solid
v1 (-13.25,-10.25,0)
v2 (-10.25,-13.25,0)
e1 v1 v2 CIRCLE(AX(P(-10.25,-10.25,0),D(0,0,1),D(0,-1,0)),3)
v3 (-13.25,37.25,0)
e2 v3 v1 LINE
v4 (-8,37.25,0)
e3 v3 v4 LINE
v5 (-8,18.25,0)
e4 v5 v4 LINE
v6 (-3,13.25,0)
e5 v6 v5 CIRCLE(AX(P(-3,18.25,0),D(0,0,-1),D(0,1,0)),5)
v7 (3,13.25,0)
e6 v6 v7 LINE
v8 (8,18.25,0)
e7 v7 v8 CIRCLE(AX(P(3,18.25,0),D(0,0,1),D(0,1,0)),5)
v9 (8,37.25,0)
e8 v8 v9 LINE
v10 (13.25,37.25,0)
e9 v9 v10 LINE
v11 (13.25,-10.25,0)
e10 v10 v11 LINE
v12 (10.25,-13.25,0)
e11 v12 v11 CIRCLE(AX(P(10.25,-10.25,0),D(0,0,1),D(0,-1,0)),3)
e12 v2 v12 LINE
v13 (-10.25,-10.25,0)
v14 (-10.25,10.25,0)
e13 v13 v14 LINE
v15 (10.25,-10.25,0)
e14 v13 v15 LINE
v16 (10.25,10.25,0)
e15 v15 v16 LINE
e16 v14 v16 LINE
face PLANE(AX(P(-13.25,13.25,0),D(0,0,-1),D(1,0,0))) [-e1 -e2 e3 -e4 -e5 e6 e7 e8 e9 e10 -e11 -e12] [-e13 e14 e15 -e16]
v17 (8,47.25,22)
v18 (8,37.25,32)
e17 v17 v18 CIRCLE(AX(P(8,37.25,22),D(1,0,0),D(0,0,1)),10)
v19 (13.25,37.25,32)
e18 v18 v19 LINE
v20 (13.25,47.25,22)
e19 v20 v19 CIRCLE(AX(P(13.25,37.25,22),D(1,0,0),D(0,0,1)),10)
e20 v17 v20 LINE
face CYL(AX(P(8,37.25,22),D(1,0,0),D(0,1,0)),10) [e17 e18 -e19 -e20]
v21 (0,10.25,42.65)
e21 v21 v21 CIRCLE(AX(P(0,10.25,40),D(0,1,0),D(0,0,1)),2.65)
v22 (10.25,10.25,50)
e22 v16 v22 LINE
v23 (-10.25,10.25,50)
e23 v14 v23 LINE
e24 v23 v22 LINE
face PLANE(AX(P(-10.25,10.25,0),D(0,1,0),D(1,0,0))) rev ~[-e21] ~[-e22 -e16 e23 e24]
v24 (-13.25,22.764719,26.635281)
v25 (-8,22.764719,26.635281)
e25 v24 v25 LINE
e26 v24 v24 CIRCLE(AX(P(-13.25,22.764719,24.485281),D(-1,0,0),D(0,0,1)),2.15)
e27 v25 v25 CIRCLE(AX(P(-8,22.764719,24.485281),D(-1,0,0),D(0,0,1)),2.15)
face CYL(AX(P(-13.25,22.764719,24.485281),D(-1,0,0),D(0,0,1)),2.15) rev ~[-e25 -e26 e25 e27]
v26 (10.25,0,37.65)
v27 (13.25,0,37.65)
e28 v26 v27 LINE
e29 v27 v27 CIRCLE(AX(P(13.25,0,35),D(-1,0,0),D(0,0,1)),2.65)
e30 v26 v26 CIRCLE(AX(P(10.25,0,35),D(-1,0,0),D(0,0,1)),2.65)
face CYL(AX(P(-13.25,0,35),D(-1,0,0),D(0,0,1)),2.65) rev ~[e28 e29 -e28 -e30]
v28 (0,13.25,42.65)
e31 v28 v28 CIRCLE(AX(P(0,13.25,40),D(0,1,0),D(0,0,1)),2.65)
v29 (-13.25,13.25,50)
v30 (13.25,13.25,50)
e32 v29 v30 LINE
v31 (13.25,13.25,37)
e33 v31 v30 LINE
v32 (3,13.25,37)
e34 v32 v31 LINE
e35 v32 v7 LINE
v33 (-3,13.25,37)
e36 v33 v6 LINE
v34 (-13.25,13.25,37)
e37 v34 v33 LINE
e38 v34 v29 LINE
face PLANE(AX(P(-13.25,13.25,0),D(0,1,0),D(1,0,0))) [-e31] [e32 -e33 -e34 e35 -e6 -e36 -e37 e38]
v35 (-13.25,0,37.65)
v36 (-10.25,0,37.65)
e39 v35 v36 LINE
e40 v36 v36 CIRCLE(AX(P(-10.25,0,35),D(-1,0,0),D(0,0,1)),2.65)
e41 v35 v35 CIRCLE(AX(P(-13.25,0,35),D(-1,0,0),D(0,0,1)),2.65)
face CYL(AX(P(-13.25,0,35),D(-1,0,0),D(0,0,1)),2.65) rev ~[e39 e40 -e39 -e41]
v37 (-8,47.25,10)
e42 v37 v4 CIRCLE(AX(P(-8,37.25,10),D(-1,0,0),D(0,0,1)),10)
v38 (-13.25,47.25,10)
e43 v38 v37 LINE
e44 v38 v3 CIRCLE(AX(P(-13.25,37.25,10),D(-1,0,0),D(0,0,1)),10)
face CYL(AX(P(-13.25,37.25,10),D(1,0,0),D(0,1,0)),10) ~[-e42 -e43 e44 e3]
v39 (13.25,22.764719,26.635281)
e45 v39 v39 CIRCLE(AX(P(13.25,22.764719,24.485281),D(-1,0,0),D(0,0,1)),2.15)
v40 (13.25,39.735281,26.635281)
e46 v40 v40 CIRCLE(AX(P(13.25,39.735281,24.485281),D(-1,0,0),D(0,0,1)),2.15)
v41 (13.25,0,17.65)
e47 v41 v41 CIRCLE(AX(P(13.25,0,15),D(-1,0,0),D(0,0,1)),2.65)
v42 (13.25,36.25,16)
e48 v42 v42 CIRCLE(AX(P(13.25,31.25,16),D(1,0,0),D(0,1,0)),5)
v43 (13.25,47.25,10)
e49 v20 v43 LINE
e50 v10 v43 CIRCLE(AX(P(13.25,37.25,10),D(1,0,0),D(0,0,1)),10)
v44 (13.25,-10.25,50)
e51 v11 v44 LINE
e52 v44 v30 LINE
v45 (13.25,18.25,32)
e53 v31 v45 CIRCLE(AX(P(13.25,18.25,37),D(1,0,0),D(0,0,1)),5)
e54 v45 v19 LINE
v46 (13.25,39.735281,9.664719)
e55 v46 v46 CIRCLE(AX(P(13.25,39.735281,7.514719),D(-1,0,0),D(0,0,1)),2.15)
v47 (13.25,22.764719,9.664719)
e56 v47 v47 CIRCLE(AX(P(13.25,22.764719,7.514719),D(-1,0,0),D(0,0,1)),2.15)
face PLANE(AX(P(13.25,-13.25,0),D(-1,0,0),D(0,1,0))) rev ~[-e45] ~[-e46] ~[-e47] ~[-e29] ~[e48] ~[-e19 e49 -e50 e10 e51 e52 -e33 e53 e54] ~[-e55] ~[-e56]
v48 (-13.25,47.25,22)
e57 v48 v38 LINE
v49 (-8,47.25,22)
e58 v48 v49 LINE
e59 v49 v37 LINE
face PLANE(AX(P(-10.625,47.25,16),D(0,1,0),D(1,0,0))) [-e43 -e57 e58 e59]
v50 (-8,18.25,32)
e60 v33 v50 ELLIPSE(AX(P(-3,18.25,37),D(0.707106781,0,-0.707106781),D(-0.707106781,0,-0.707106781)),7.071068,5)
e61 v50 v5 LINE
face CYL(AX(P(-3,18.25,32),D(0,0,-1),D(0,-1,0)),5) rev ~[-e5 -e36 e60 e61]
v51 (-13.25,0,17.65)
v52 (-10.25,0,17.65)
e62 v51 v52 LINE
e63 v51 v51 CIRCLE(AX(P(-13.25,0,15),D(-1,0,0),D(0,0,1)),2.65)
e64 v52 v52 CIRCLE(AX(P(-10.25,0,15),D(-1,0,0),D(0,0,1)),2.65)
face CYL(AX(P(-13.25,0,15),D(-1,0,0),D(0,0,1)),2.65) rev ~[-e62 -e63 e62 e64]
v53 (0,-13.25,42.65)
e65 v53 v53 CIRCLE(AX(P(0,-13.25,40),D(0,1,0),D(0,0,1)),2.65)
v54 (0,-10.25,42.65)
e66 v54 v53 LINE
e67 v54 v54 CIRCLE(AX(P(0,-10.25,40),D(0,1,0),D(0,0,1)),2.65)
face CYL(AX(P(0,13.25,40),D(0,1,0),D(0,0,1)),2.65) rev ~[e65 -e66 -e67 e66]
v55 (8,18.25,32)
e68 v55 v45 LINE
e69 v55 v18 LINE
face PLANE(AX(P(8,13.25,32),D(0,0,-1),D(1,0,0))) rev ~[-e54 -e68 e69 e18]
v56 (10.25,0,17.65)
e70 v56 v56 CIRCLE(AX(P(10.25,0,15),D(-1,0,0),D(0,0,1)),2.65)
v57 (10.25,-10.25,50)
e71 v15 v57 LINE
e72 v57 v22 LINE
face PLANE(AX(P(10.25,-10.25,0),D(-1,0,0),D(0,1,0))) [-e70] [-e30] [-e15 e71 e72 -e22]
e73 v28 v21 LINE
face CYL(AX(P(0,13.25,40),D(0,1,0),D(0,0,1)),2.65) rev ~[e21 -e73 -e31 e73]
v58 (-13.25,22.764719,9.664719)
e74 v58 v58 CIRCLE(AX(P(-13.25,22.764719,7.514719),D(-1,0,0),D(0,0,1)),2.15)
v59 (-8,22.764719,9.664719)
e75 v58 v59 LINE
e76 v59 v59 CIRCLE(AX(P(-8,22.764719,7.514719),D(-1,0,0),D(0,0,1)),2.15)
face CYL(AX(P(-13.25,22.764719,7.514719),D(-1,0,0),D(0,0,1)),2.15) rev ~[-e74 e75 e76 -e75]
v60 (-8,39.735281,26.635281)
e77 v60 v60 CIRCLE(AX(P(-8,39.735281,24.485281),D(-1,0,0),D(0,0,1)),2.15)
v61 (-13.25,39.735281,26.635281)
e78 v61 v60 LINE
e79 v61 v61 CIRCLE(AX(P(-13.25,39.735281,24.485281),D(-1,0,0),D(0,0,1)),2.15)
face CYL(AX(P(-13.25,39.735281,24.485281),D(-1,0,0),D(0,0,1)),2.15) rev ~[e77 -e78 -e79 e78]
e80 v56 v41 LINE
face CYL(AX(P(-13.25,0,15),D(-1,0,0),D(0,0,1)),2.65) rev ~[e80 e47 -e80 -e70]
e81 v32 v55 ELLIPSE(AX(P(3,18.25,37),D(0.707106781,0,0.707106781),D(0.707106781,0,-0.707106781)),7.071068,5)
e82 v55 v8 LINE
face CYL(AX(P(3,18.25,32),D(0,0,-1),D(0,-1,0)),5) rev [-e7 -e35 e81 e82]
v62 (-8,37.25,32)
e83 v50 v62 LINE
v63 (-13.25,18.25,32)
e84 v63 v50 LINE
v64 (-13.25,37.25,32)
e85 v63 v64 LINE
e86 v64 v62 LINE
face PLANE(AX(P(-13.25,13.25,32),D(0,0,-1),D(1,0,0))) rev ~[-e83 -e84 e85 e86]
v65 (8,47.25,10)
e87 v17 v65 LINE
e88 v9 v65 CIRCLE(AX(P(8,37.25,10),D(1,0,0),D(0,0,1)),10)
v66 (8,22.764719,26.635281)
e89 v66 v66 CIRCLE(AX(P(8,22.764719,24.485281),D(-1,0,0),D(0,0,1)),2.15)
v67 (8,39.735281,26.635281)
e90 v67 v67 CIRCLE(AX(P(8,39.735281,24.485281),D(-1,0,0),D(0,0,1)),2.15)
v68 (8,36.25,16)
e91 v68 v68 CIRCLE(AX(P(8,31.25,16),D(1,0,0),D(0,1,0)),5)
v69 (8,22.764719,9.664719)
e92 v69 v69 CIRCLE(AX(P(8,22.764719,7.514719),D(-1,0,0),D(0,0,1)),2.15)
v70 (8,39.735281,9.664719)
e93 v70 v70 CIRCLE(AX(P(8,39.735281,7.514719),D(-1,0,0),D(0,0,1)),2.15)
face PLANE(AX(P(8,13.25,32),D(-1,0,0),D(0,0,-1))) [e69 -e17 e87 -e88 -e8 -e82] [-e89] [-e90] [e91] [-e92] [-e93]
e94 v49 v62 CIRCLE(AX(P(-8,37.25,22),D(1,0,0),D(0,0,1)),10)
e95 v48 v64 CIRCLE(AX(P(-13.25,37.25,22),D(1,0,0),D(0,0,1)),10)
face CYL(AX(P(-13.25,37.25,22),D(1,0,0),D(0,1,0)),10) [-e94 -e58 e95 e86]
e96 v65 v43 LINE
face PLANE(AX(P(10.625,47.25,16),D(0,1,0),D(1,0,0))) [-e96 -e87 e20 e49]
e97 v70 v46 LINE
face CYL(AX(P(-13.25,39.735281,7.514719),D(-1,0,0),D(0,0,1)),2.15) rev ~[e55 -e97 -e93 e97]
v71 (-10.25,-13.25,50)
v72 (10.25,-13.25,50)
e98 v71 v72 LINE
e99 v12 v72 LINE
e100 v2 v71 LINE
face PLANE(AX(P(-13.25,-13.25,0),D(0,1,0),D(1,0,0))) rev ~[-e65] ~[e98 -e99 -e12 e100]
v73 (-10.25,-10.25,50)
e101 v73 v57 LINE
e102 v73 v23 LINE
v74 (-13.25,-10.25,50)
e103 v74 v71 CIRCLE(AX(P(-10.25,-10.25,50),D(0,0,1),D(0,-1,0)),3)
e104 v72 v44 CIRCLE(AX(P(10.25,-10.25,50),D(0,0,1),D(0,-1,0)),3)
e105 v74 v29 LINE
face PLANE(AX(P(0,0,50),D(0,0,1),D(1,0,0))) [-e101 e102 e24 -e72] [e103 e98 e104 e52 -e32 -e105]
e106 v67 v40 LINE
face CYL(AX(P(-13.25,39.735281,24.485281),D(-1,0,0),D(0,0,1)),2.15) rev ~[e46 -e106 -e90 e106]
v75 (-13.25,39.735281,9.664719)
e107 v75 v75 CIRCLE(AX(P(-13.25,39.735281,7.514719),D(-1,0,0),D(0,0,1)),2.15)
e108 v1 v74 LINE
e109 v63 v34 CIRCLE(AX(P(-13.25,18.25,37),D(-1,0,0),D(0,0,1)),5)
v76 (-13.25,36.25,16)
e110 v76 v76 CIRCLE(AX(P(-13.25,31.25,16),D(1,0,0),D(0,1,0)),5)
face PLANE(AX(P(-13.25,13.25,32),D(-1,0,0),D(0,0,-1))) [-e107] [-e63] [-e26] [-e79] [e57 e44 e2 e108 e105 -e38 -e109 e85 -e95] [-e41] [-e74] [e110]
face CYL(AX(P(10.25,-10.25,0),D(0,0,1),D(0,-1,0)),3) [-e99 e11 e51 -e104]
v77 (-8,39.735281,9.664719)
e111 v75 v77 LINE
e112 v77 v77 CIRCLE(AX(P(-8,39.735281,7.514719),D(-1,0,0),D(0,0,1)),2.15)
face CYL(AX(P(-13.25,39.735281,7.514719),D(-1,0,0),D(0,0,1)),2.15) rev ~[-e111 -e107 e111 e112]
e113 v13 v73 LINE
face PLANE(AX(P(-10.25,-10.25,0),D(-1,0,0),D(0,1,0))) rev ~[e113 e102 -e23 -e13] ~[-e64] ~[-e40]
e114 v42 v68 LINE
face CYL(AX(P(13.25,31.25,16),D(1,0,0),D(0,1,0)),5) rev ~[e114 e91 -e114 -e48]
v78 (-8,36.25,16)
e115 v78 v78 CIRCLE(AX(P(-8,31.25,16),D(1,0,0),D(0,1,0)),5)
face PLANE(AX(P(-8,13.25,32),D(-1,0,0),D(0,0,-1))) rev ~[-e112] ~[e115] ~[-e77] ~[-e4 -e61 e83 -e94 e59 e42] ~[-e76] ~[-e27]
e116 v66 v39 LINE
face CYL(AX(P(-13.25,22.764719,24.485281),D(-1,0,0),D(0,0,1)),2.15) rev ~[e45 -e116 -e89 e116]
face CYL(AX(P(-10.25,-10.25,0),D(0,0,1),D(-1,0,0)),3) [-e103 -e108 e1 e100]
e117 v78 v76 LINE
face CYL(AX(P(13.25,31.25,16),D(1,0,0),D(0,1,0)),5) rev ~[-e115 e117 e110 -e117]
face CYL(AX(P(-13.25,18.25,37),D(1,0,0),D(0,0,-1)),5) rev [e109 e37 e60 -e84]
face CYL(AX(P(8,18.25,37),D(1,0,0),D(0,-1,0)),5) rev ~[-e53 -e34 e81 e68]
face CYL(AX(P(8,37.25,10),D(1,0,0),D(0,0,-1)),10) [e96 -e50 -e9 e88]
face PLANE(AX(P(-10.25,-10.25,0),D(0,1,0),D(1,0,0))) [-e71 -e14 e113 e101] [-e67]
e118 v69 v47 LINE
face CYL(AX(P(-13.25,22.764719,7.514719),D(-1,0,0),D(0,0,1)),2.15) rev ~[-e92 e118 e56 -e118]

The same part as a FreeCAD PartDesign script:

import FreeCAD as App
import Part
import Sketcher
Q = App.Units.Quantity


def edges_at(feature, points):
    """Names of the edges that pass closest to the given points."""
    edges = feature.Shape.Edges
    near = lambda p: min(range(len(edges)), key=lambda i: edges[i].distToShape(Part.Vertex(*p))[0])
    return sorted({f"Edge{near(p) + 1}" for p in points})


def add_polygon(sketch, points):
    """Adds a closed chain of lines whose ends are joined by coincident constraints."""
    first, n = sketch.GeometryCount, len(points)
    for a, b in zip(points, points[1:] + points[:1]):
        sketch.addGeometry(Part.LineSegment(App.Vector(*a, 0), App.Vector(*b, 0)), False)
    for i in range(n):
        sketch.addConstraint(Sketcher.Constraint("Coincident", first + i, 2, first + (i + 1) % n, 1))

doc = App.newDocument("Part")
params = doc.addObject("Spreadsheet::Sheet", "Params")
for row, (alias, value) in enumerate([
    ("sketch1_width", "26.5 mm"),
    ("sketch1_width2", "20.5 mm"),
    ("pad1_length", "50 mm"),
    ("sketch2_height", "32 mm"),
    ("sketch2_width", "5.25 mm"),
    ("pad2_length", "34 mm"),
    ("sketch3_diameter", "9 mm"),
    ("sketch3_diameter2", "4.3 mm"),
    ("fillet_radius", "5 mm"),
    ("fillet2_radius", "10 mm"),
    ("fillet3_radius", "10 mm"),
    ("fillet4_radius", "3 mm"),
    ("sketch4_diameter", "5.3 mm"),
    ("sketch5_diameter", "5.3 mm"),
    ("sketch6_diameter", "10 mm"),
], start=1):
    params.set(f"A{row}", alias)
    params.set(f"B{row}", "=" + value)
    params.setAlias(f"B{row}", alias)

body = doc.addObject("PartDesign::Body", "Body")

# Sketch on XY plane
sketch1 = doc.addObject("Sketcher::SketchObject", "Sketch")
body.addObject(sketch1)
sketch1.AttachmentSupport = (doc.XY_Plane, [""])
sketch1.MapMode = "FlatFace"
add_polygon(sketch1, [(-13, 13), (-13, -13), (13, -13), (13, 13)])  # lines 0-3
add_polygon(sketch1, [(10, -10), (-10, -10), (-10, 10), (10, 10)])  # lines 4-7
sketch1.addConstraint([
    Sketcher.Constraint("Vertical", 0),
    Sketcher.Constraint("Horizontal", 1),
    Sketcher.Constraint("Vertical", 2),
    Sketcher.Constraint("Horizontal", 3),
    Sketcher.Constraint("Horizontal", 4),
    Sketcher.Constraint("Vertical", 5),
    Sketcher.Constraint("Horizontal", 6),
    Sketcher.Constraint("Vertical", 7),
    Sketcher.Constraint("Symmetric", 0, 2, 2, 2, -1, 1),
    Sketcher.Constraint("Symmetric", 4, 2, 6, 2, -1, 1),
    Sketcher.Constraint("Equal", 3, 0),
    Sketcher.Constraint("Equal", 6, 5),
    Sketcher.Constraint("DistanceX", 1, 1, 1, 2, Q("26.5 mm")),
    Sketcher.Constraint("DistanceX", 4, 2, 4, 1, Q("20.5 mm")),
])
sketch1.setExpression("Constraints[20]", "Params.sketch1_width")
sketch1.setExpression("Constraints[21]", "Params.sketch1_width2")
pad1 = doc.addObject("PartDesign::Pad", "Pad")
body.addObject(pad1)
pad1.Profile = sketch1
pad1.setExpression("Length", "Params.pad1_length")

# Sketch on XZ plane
sketch2 = doc.addObject("Sketcher::SketchObject", "Sketch001")
body.addObject(sketch2)
sketch2.AttachmentSupport = (doc.XZ_Plane, [""])
sketch2.MapMode = "FlatFace"
sketch2.AttachmentOffset = App.Placement(App.Vector(0, 0, -13.25), App.Rotation())
add_polygon(sketch2, [(-13, 0), (-13, 32), (-8, 32), (-8, 0)])  # lines 0-3
add_polygon(sketch2, [(8, 0), (8, 32), (13, 32), (13, 0)])  # lines 4-7
sketch2.addConstraint([
    Sketcher.Constraint("Vertical", 0),
    Sketcher.Constraint("Horizontal", 1),
    Sketcher.Constraint("Vertical", 2),
    Sketcher.Constraint("Horizontal", 3),
    Sketcher.Constraint("Vertical", 4),
    Sketcher.Constraint("Horizontal", 5),
    Sketcher.Constraint("Vertical", 6),
    Sketcher.Constraint("Horizontal", 7),
    Sketcher.Constraint("Symmetric", 3, 2, 6, 2, -1, 1),
    Sketcher.Constraint("Symmetric", 1, 2, 4, 2, -2),
    Sketcher.Constraint("PointOnObject", 2, 2, -1),
    Sketcher.Constraint("DistanceY", 0, 1, 0, 2, Q("32 mm")),
    Sketcher.Constraint("DistanceX", 1, 2, -1, 1, Q("8 mm")),
    Sketcher.Constraint("DistanceX", 1, 1, 1, 2, Q("5.25 mm")),
])
sketch2.setExpression("Constraints[19]", "Params.sketch2_height")
sketch2.setExpression("Constraints[21]", "Params.sketch2_width")
pad2 = doc.addObject("PartDesign::Pad", "Pad001")
body.addObject(pad2)
pad2.Profile = sketch2
pad2.setExpression("Length", "Params.pad2_length")
pad2.Reversed = True

# Sketch on YZ plane
sketch3 = doc.addObject("Sketcher::SketchObject", "Sketch002")
body.addObject(sketch3)
sketch3.AttachmentSupport = (doc.YZ_Plane, [""])
sketch3.MapMode = "FlatFace"
sketch3.AttachmentOffset = App.Placement(App.Vector(0, 0, -13.25), App.Rotation())
sketch3.addGeometry([
    Part.Circle(App.Vector(31.2, 16, 0), App.Vector(0, 0, 1), 4.5),  # 0
    Part.Circle(App.Vector(39.7, 7.5, 0), App.Vector(0, 0, 1), 2.1),  # 1
    Part.Circle(App.Vector(39.7, 24.5, 0), App.Vector(0, 0, 1), 2.1),  # 2
    Part.Circle(App.Vector(22.8, 24.5, 0), App.Vector(0, 0, 1), 2.1),  # 3
    Part.Circle(App.Vector(22.8, 7.5, 0), App.Vector(0, 0, 1), 2.1),  # 4
], False)
sketch3.addConstraint([
    Sketcher.Constraint("Equal", 1, 2),
    Sketcher.Constraint("Equal", 2, 3),
    Sketcher.Constraint("Equal", 3, 4),
    Sketcher.Constraint("Horizontal", 2, 3, 3, 3),
    Sketcher.Constraint("Horizontal", 1, 3, 4, 3),
    Sketcher.Constraint("Vertical", 1, 3, 2, 3),
    Sketcher.Constraint("Vertical", 3, 3, 4, 3),
    Sketcher.Constraint("Diameter", 0, Q("9 mm")),
    Sketcher.Constraint("Diameter", 1, Q("4.3 mm")),
    Sketcher.Constraint("DistanceY", -1, 1, 0, 3, Q("16 mm")),
    Sketcher.Constraint("DistanceX", -1, 1, 0, 3, Q("31.25 mm")),
    Sketcher.Constraint("DistanceX", -1, 1, 1, 3, Q("39.735281 mm")),
    Sketcher.Constraint("DistanceY", -1, 1, 1, 3, Q("7.514719 mm")),
    Sketcher.Constraint("DistanceY", -1, 1, 2, 3, Q("24.485281 mm")),
    Sketcher.Constraint("DistanceX", -1, 1, 3, 3, Q("22.764719 mm")),
])
sketch3.setExpression("Constraints[7]", "Params.sketch3_diameter")
sketch3.setExpression("Constraints[8]", "Params.sketch3_diameter2")
pocket1 = doc.addObject("PartDesign::Pocket", "Pocket")
body.addObject(pocket1)
pocket1.Profile = sketch3
pocket1.Type = "ThroughAll"
pocket1.Reversed = True
doc.recompute()

fillet = doc.addObject("PartDesign::Fillet", "Fillet")
body.addObject(fillet)
fillet.Base = (pocket1, edges_at(pocket1, [
    (-8, 13.25, 16),
    (-10.625, 13.25, 32),
    (10.625, 13.25, 32),
    (8, 13.25, 16),
]))
fillet.setExpression("Radius", "Params.fillet_radius")
doc.recompute()

fillet2 = doc.addObject("PartDesign::Fillet", "Fillet001")
body.addObject(fillet2)
fillet2.Base = (fillet, edges_at(fillet, [(-10.625, 47.25, 0), (10.625, 47.25, 0)]))
fillet2.setExpression("Radius", "Params.fillet2_radius")
doc.recompute()

fillet3 = doc.addObject("PartDesign::Fillet", "Fillet002")
body.addObject(fillet3)
fillet3.Base = (fillet2, edges_at(fillet2, [(-10.625, 47.25, 32), (10.625, 47.25, 32)]))
fillet3.setExpression("Radius", "Params.fillet3_radius")
doc.recompute()

fillet4 = doc.addObject("PartDesign::Fillet", "Fillet003")
body.addObject(fillet4)
fillet4.Base = (fillet3, edges_at(fillet3, [(13.25, -13.25, 25), (-13.25, -13.25, 25)]))
fillet4.setExpression("Radius", "Params.fillet4_radius")

# Sketch on XZ plane
sketch4 = doc.addObject("Sketcher::SketchObject", "Sketch003")
body.addObject(sketch4)
sketch4.AttachmentSupport = (doc.XZ_Plane, [""])
sketch4.MapMode = "FlatFace"
sketch4.AttachmentOffset = App.Placement(App.Vector(0, 0, -13.25), App.Rotation())
sketch4.addGeometry(Part.Circle(App.Vector(0, 40, 0), App.Vector(0, 0, 1), 2.6), False)
sketch4.addConstraint([
    Sketcher.Constraint("PointOnObject", 0, 3, -2),
    Sketcher.Constraint("Diameter", 0, Q("5.3 mm")),
    Sketcher.Constraint("DistanceY", -1, 1, 0, 3, Q("40 mm")),
])
sketch4.setExpression("Constraints[1]", "Params.sketch4_diameter")
pocket2 = doc.addObject("PartDesign::Pocket", "Pocket001")
body.addObject(pocket2)
pocket2.Profile = sketch4
pocket2.Type = "ThroughAll"
pocket2.Reversed = True

# Sketch on YZ plane
sketch5 = doc.addObject("Sketcher::SketchObject", "Sketch004")
body.addObject(sketch5)
sketch5.AttachmentSupport = (doc.YZ_Plane, [""])
sketch5.MapMode = "FlatFace"
sketch5.AttachmentOffset = App.Placement(App.Vector(0, 0, -13.25), App.Rotation())
sketch5.addGeometry([
    Part.Circle(App.Vector(0, 35, 0), App.Vector(0, 0, 1), 2.6),
    Part.Circle(App.Vector(0, 15, 0), App.Vector(0, 0, 1), 2.6),
], False)
sketch5.addConstraint([
    Sketcher.Constraint("Equal", 0, 1),
    Sketcher.Constraint("PointOnObject", 0, 3, -2),
    Sketcher.Constraint("PointOnObject", 1, 3, -2),
    Sketcher.Constraint("Diameter", 0, Q("5.3 mm")),
    Sketcher.Constraint("DistanceY", -1, 1, 0, 3, Q("35 mm")),
    Sketcher.Constraint("DistanceY", -1, 1, 1, 3, Q("15 mm")),
])
sketch5.setExpression("Constraints[3]", "Params.sketch5_diameter")
pocket3 = doc.addObject("PartDesign::Pocket", "Pocket002")
body.addObject(pocket3)
pocket3.Profile = sketch5
pocket3.Type = "ThroughAll"
pocket3.Reversed = True

# Sketch on YZ plane
sketch6 = doc.addObject("Sketcher::SketchObject", "Sketch005")
body.addObject(sketch6)
sketch6.AttachmentSupport = (doc.YZ_Plane, [""])
sketch6.MapMode = "FlatFace"
sketch6.AttachmentOffset = App.Placement(App.Vector(0, 0, 13.25), App.Rotation())
sketch6.addGeometry(Part.Circle(App.Vector(31, 16, 0), App.Vector(0, 0, 1), 5), False)
sketch6.addConstraint([
    Sketcher.Constraint("Diameter", 0, Q("10 mm")),
    Sketcher.Constraint("DistanceY", -1, 1, 0, 3, Q("16 mm")),
    Sketcher.Constraint("DistanceX", -1, 1, 0, 3, Q("31.25 mm")),
])
sketch6.setExpression("Constraints[0]", "Params.sketch6_diameter")
pocket4 = doc.addObject("PartDesign::Pocket", "Pocket003")
body.addObject(pocket4)
pocket4.Profile = sketch6
pocket4.Type = "ThroughAll"

doc.recompute()
